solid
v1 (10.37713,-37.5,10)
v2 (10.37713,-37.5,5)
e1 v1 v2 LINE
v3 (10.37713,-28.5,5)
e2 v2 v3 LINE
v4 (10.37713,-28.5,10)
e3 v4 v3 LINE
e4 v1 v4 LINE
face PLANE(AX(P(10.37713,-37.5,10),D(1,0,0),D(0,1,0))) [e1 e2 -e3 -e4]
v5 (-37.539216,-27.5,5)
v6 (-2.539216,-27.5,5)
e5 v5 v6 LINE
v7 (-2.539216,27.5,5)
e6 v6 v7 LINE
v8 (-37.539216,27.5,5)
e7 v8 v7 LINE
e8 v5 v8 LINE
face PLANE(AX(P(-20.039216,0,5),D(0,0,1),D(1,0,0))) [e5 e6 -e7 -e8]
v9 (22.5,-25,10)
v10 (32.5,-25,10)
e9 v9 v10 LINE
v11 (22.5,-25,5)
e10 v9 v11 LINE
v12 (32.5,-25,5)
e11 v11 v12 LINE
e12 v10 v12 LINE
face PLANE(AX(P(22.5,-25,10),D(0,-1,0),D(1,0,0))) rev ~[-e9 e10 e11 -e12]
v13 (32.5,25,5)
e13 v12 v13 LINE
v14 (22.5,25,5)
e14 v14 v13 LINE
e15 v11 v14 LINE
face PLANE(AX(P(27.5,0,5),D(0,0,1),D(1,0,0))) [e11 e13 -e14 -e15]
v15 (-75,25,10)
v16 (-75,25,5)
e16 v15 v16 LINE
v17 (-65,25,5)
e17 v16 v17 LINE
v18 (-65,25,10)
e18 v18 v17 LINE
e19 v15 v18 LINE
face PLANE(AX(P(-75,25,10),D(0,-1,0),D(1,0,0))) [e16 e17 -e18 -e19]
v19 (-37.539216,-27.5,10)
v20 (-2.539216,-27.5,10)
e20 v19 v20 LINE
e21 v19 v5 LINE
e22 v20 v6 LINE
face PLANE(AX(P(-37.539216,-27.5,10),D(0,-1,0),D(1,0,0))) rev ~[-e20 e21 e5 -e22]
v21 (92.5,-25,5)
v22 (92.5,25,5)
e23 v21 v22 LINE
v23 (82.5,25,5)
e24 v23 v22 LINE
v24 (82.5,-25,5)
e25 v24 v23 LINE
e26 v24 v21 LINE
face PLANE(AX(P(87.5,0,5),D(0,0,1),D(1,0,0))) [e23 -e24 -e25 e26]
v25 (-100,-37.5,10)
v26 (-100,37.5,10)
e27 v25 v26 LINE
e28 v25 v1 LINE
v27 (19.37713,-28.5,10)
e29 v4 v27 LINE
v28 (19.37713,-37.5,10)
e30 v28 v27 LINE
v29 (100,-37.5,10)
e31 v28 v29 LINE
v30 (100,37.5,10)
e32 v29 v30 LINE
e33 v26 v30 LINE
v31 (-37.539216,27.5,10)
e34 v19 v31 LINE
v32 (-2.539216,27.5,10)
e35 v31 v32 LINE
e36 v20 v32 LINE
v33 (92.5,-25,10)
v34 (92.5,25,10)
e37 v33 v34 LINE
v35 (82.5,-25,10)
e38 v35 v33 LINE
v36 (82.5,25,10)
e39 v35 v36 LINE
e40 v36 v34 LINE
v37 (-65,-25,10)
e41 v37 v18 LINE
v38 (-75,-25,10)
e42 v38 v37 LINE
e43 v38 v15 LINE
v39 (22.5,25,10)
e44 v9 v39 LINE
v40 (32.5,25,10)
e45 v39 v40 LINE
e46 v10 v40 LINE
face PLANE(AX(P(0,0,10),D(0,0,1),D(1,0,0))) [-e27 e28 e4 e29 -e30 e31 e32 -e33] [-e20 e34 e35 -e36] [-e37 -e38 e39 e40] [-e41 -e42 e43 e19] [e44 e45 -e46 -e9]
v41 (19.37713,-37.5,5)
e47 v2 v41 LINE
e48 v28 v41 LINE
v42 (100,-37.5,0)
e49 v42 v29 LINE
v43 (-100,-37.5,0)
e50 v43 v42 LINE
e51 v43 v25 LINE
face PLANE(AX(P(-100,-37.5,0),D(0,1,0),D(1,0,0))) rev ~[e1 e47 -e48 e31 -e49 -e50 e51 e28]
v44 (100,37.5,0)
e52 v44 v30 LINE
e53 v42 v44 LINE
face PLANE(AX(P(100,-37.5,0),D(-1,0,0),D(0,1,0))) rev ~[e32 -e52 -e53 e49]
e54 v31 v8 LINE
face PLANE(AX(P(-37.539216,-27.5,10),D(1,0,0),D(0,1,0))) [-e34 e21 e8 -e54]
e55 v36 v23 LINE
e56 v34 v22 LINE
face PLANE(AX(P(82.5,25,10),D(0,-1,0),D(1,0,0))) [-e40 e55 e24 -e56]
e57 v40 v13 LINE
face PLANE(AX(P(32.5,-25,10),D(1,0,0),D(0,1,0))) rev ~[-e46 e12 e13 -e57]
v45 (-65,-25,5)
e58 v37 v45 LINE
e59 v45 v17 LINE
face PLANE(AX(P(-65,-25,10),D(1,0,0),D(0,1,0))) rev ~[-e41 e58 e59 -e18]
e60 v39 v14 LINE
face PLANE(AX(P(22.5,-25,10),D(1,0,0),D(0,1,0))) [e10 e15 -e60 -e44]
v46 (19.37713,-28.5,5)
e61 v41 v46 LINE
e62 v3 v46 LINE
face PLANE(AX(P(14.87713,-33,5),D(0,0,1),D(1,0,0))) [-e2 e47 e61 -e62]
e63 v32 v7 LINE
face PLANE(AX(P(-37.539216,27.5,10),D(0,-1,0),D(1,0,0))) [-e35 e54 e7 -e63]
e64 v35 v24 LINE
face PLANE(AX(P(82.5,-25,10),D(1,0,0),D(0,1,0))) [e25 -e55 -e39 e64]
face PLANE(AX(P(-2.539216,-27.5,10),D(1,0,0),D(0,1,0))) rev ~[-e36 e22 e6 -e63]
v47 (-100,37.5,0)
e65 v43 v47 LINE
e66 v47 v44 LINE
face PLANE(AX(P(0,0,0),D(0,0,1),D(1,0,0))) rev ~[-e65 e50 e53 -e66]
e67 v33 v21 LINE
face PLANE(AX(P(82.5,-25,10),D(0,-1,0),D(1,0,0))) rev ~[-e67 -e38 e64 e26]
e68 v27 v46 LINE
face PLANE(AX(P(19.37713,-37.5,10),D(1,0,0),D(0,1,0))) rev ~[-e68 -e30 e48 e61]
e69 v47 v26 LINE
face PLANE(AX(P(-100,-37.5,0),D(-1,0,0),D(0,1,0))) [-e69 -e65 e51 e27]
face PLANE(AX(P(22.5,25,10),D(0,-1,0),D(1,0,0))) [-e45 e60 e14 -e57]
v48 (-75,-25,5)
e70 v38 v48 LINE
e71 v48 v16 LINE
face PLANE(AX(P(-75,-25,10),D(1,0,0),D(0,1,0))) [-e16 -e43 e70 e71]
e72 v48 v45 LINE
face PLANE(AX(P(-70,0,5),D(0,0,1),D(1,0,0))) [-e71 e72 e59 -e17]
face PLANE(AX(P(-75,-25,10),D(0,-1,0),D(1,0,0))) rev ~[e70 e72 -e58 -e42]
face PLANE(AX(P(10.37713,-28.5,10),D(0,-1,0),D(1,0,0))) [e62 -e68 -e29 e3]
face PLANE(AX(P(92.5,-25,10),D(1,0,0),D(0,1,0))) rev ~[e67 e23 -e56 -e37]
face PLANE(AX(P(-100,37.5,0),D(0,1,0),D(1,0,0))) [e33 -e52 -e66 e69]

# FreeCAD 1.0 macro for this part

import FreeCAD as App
import Part
import Sketcher
Q = App.Units.Quantity

doc = App.newDocument("Part")
body = doc.addObject("PartDesign::Body", "Body")

# Sketch on XY plane
sketch1 = body.newObject("Sketcher::SketchObject", "Sketch")
sketch1.AttachmentSupport = (doc.getObject("XY_Plane"), [""])
sketch1.MapMode = "FlatFace"
sketch1.addGeometry(Part.LineSegment(App.Vector(-100, 38, 0), App.Vector(-100, -38, 0)), False)
sketch1.addGeometry(Part.LineSegment(App.Vector(-100, -38, 0), App.Vector(100, -38, 0)), False)
sketch1.addGeometry(Part.LineSegment(App.Vector(100, -38, 0), App.Vector(100, 38, 0)), False)
sketch1.addGeometry(Part.LineSegment(App.Vector(100, 38, 0), App.Vector(-100, 38, 0)), False)
sketch1.addConstraint(Sketcher.Constraint("Coincident", 0, 2, 1, 1))
sketch1.addConstraint(Sketcher.Constraint("Coincident", 1, 2, 2, 1))
sketch1.addConstraint(Sketcher.Constraint("Coincident", 2, 2, 3, 1))
sketch1.addConstraint(Sketcher.Constraint("Coincident", 3, 2, 0, 1))
sketch1.addConstraint(Sketcher.Constraint("Vertical", 0))
sketch1.addConstraint(Sketcher.Constraint("Horizontal", 1))
sketch1.addConstraint(Sketcher.Constraint("Vertical", 2))
sketch1.addConstraint(Sketcher.Constraint("Horizontal", 3))
sketch1.addConstraint(Sketcher.Constraint("Symmetric", 0, 2, 2, 2, -1, 1))
sketch1.addConstraint(Sketcher.Constraint("DistanceX", 1, 1, 1, 2, Q("200 mm")))
sketch1.addConstraint(Sketcher.Constraint("DistanceY", 0, 2, 0, 1, Q("75 mm")))
pad1 = body.newObject("PartDesign::Pad", "Pad")
pad1.Profile = sketch1
pad1.Length = 10

# Sketch on XY plane
sketch2 = body.newObject("Sketcher::SketchObject", "Sketch001")
sketch2.AttachmentSupport = (doc.getObject("XY_Plane"), [""])
sketch2.MapMode = "FlatFace"
sketch2.AttachmentOffset = App.Placement(App.Vector(0, 0, 10), App.Rotation())
sketch2.addGeometry(Part.LineSegment(App.Vector(-75, 25, 0), App.Vector(-75, -25, 0)), False)
sketch2.addGeometry(Part.LineSegment(App.Vector(-75, -25, 0), App.Vector(-65, -25, 0)), False)
sketch2.addGeometry(Part.LineSegment(App.Vector(-65, -25, 0), App.Vector(-65, 25, 0)), False)
sketch2.addGeometry(Part.LineSegment(App.Vector(-65, 25, 0), App.Vector(-75, 25, 0)), False)
sketch2.addGeometry(Part.LineSegment(App.Vector(22, 25, 0), App.Vector(22, -25, 0)), False)
sketch2.addGeometry(Part.LineSegment(App.Vector(22, -25, 0), App.Vector(32, -25, 0)), False)
sketch2.addGeometry(Part.LineSegment(App.Vector(32, -25, 0), App.Vector(32, 25, 0)), False)
sketch2.addGeometry(Part.LineSegment(App.Vector(32, 25, 0), App.Vector(22, 25, 0)), False)
sketch2.addGeometry(Part.LineSegment(App.Vector(82, 25, 0), App.Vector(82, -25, 0)), False)
sketch2.addGeometry(Part.LineSegment(App.Vector(82, -25, 0), App.Vector(92, -25, 0)), False)
sketch2.addGeometry(Part.LineSegment(App.Vector(92, -25, 0), App.Vector(92, 25, 0)), False)
sketch2.addGeometry(Part.LineSegment(App.Vector(92, 25, 0), App.Vector(82, 25, 0)), False)
sketch2.addConstraint(Sketcher.Constraint("Coincident", 0, 2, 1, 1))
sketch2.addConstraint(Sketcher.Constraint("Coincident", 1, 2, 2, 1))
sketch2.addConstraint(Sketcher.Constraint("Coincident", 2, 2, 3, 1))
sketch2.addConstraint(Sketcher.Constraint("Coincident", 3, 2, 0, 1))
sketch2.addConstraint(Sketcher.Constraint("Coincident", 4, 2, 5, 1))
sketch2.addConstraint(Sketcher.Constraint("Coincident", 5, 2, 6, 1))
sketch2.addConstraint(Sketcher.Constraint("Coincident", 6, 2, 7, 1))
sketch2.addConstraint(Sketcher.Constraint("Coincident", 7, 2, 4, 1))
sketch2.addConstraint(Sketcher.Constraint("Coincident", 8, 2, 9, 1))
sketch2.addConstraint(Sketcher.Constraint("Coincident", 9, 2, 10, 1))
sketch2.addConstraint(Sketcher.Constraint("Coincident", 10, 2, 11, 1))
sketch2.addConstraint(Sketcher.Constraint("Coincident", 11, 2, 8, 1))
sketch2.addConstraint(Sketcher.Constraint("Vertical", 0))
sketch2.addConstraint(Sketcher.Constraint("Horizontal", 1))
sketch2.addConstraint(Sketcher.Constraint("Vertical", 2))
sketch2.addConstraint(Sketcher.Constraint("Horizontal", 3))
sketch2.addConstraint(Sketcher.Constraint("Vertical", 4))
sketch2.addConstraint(Sketcher.Constraint("Horizontal", 5))
sketch2.addConstraint(Sketcher.Constraint("Vertical", 6))
sketch2.addConstraint(Sketcher.Constraint("Horizontal", 7))
sketch2.addConstraint(Sketcher.Constraint("Vertical", 8))
sketch2.addConstraint(Sketcher.Constraint("Horizontal", 9))
sketch2.addConstraint(Sketcher.Constraint("Vertical", 10))
sketch2.addConstraint(Sketcher.Constraint("Horizontal", 11))
sketch2.addConstraint(Sketcher.Constraint("Horizontal", 1, 2, 4, 2))
sketch2.addConstraint(Sketcher.Constraint("Horizontal", 3, 2, 6, 2))
sketch2.addConstraint(Sketcher.Constraint("Horizontal", 5, 2, 8, 2))
sketch2.addConstraint(Sketcher.Constraint("Horizontal", 7, 2, 10, 2))
sketch2.addConstraint(Sketcher.Constraint("Equal", 3, 5))
sketch2.addConstraint(Sketcher.Constraint("Equal", 7, 9))
sketch2.addConstraint(Sketcher.Constraint("DistanceX", 1, 1, 1, 2, Q("10 mm")))
sketch2.addConstraint(Sketcher.Constraint("DistanceY", 0, 2, 0, 1, Q("50 mm")))
sketch2.addConstraint(Sketcher.Constraint("DistanceX", 0, 2, -1, 1, Q("75 mm")))
sketch2.addConstraint(Sketcher.Constraint("DistanceY", 0, 2, -1, 1, Q("25 mm")))
sketch2.addConstraint(Sketcher.Constraint("DistanceX", 5, 2, 8, 2, Q("50 mm")))
sketch2.addConstraint(Sketcher.Constraint("DistanceX", -1, 1, 4, 2, Q("22.5 mm")))
pocket1 = body.newObject("PartDesign::Pocket", "Pocket")
pocket1.Profile = sketch2
pocket1.Length = 5

# Sketch on XY plane
sketch3 = body.newObject("Sketcher::SketchObject", "Sketch002")
sketch3.AttachmentSupport = (doc.getObject("XY_Plane"), [""])
sketch3.MapMode = "FlatFace"
sketch3.AttachmentOffset = App.Placement(App.Vector(0, 0, 10), App.Rotation())
sketch3.addGeometry(Part.LineSegment(App.Vector(-38, 28, 0), App.Vector(-38, -28, 0)), False)
sketch3.addGeometry(Part.LineSegment(App.Vector(-38, -28, 0), App.Vector(-3, -28, 0)), False)
sketch3.addGeometry(Part.LineSegment(App.Vector(-3, -28, 0), App.Vector(-3, 28, 0)), False)
sketch3.addGeometry(Part.LineSegment(App.Vector(-3, 28, 0), App.Vector(-38, 28, 0)), False)
sketch3.addGeometry(Part.LineSegment(App.Vector(10, -28, 0), App.Vector(10, -38, 0)), False)
sketch3.addGeometry(Part.LineSegment(App.Vector(10, -38, 0), App.Vector(19, -38, 0)), False)
sketch3.addGeometry(Part.LineSegment(App.Vector(19, -38, 0), App.Vector(19, -28, 0)), False)
sketch3.addGeometry(Part.LineSegment(App.Vector(19, -28, 0), App.Vector(10, -28, 0)), False)
sketch3.addConstraint(Sketcher.Constraint("Coincident", 0, 2, 1, 1))
sketch3.addConstraint(Sketcher.Constraint("Coincident", 1, 2, 2, 1))
sketch3.addConstraint(Sketcher.Constraint("Coincident", 2, 2, 3, 1))
sketch3.addConstraint(Sketcher.Constraint("Coincident", 3, 2, 0, 1))
sketch3.addConstraint(Sketcher.Constraint("Coincident", 4, 2, 5, 1))
sketch3.addConstraint(Sketcher.Constraint("Coincident", 5, 2, 6, 1))
sketch3.addConstraint(Sketcher.Constraint("Coincident", 6, 2, 7, 1))
sketch3.addConstraint(Sketcher.Constraint("Coincident", 7, 2, 4, 1))
sketch3.addConstraint(Sketcher.Constraint("Vertical", 0))
sketch3.addConstraint(Sketcher.Constraint("Horizontal", 1))
sketch3.addConstraint(Sketcher.Constraint("Vertical", 2))
sketch3.addConstraint(Sketcher.Constraint("Horizontal", 3))
sketch3.addConstraint(Sketcher.Constraint("Vertical", 4))
sketch3.addConstraint(Sketcher.Constraint("Horizontal", 5))
sketch3.addConstraint(Sketcher.Constraint("Vertical", 6))
sketch3.addConstraint(Sketcher.Constraint("Horizontal", 7))
sketch3.addConstraint(Sketcher.Constraint("Equal", 7, 4))
sketch3.addConstraint(Sketcher.Constraint("DistanceX", 1, 1, 1, 2, Q("35 mm")))
sketch3.addConstraint(Sketcher.Constraint("DistanceX", 5, 1, 5, 2, Q("9 mm")))
sketch3.addConstraint(Sketcher.Constraint("DistanceY", 0, 2, 0, 1, Q("55 mm")))
sketch3.addConstraint(Sketcher.Constraint("DistanceY", 4, 2, 1, 2, Q("10 mm")))
sketch3.addConstraint(Sketcher.Constraint("DistanceY", 0, 2, -1, 1, Q("27.5 mm")))
sketch3.addConstraint(Sketcher.Constraint("DistanceX", -1, 1, 4, 2, Q("10.37713 mm")))
sketch3.addConstraint(Sketcher.Constraint("DistanceX", 0, 2, -1, 1, Q("37.539216 mm")))
pocket2 = body.newObject("PartDesign::Pocket", "Pocket001")
pocket2.Profile = sketch3
pocket2.Length = 5

doc.recompute()
